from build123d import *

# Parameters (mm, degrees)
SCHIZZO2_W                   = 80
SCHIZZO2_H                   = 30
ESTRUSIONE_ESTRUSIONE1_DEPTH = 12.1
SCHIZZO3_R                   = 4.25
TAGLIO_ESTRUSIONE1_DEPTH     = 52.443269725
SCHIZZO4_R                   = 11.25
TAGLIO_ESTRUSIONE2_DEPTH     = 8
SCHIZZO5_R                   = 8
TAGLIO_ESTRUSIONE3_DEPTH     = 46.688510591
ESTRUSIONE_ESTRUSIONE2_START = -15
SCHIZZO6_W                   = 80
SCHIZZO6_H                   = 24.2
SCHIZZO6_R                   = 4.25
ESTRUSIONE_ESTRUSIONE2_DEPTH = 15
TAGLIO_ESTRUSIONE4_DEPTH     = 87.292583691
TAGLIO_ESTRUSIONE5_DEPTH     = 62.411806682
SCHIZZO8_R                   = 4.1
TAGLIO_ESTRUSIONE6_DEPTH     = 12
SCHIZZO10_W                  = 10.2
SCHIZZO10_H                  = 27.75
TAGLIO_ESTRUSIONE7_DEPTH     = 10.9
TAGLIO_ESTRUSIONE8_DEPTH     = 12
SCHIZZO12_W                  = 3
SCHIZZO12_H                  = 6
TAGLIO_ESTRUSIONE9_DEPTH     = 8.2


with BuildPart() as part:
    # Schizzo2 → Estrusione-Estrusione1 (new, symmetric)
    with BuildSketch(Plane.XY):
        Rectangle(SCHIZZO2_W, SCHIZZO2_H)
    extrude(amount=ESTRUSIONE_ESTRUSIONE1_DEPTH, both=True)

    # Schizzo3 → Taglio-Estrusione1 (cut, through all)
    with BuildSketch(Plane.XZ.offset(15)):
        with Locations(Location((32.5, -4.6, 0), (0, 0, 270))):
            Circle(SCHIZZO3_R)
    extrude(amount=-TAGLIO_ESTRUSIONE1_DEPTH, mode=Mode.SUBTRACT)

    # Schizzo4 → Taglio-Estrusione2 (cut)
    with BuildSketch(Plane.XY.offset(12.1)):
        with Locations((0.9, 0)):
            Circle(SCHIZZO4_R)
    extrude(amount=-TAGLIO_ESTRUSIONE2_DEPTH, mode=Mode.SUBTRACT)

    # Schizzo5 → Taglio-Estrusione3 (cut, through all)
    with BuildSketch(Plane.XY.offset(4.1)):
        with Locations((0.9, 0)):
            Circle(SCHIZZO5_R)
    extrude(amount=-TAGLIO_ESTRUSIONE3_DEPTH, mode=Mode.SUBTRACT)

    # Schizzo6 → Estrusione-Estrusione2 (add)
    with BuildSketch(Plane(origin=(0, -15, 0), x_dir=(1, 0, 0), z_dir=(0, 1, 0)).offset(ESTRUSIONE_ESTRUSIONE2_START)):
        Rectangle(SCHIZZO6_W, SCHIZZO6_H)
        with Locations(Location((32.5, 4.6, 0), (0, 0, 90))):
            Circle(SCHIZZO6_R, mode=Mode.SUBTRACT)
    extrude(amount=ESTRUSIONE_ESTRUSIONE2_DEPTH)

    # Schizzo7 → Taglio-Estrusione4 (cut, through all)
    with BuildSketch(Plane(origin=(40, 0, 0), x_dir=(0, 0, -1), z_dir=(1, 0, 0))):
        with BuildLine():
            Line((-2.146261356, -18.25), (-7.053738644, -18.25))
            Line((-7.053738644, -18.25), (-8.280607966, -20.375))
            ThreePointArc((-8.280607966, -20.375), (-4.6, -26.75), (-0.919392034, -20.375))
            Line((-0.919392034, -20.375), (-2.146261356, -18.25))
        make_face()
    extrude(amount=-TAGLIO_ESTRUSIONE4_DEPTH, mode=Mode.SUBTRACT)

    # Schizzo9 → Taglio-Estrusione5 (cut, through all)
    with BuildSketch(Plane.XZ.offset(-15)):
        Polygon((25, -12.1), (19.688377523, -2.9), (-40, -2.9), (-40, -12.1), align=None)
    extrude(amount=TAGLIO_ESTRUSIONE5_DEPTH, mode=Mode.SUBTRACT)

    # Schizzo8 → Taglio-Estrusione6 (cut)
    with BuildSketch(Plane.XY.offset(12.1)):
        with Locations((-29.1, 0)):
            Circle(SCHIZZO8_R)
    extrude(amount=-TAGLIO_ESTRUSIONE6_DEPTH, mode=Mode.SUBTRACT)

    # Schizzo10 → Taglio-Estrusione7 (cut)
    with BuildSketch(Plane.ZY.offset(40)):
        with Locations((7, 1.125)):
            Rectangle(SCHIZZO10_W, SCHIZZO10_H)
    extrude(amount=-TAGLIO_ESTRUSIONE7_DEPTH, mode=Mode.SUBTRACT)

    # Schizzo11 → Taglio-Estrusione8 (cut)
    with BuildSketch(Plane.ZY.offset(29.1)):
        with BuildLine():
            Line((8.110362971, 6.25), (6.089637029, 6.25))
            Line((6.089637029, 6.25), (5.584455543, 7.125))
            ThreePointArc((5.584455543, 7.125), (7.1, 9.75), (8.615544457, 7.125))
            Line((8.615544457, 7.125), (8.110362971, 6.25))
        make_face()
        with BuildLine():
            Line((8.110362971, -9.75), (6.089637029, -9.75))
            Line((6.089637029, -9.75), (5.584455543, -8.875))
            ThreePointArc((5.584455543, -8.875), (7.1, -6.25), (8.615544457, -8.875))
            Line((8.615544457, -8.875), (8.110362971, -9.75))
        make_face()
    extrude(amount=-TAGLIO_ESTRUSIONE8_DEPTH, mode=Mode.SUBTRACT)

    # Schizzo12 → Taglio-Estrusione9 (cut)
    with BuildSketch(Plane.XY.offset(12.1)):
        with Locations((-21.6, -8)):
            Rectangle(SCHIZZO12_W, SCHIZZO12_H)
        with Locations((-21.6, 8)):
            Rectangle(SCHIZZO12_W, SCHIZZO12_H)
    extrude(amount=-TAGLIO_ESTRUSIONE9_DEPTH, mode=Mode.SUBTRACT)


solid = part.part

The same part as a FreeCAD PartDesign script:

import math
import FreeCAD as App
import Part
import Sketcher
from FreeCAD import Vector
Q = App.Units.Quantity

doc = App.newDocument("Part")
body = doc.addObject("PartDesign::Body", "Body")

# Sketch on XY plane
sketch1 = body.newObject("Sketcher::SketchObject", "Sketch")
sketch1.AttachmentSupport = (doc.getObject("XY_Plane"), [""])
sketch1.MapMode = "FlatFace"
sketch1.addGeometry(Part.LineSegment(Vector(-40, 15, 0), Vector(-40, -15, 0)), False)
sketch1.addGeometry(Part.LineSegment(Vector(-40, -15, 0), Vector(40, -15, 0)), False)
sketch1.addGeometry(Part.LineSegment(Vector(40, -15, 0), Vector(40, 15, 0)), False)
sketch1.addGeometry(Part.LineSegment(Vector(40, 15, 0), Vector(-40, 15, 0)), False)
sketch1.addConstraint(Sketcher.Constraint("Coincident", 0, 2, 1, 1))
sketch1.addConstraint(Sketcher.Constraint("Coincident", 1, 2, 2, 1))
sketch1.addConstraint(Sketcher.Constraint("Coincident", 2, 2, 3, 1))
sketch1.addConstraint(Sketcher.Constraint("Coincident", 3, 2, 0, 1))
sketch1.addConstraint(Sketcher.Constraint("Vertical", 0))
sketch1.addConstraint(Sketcher.Constraint("Horizontal", 1))
sketch1.addConstraint(Sketcher.Constraint("Vertical", 2))
sketch1.addConstraint(Sketcher.Constraint("Horizontal", 3))
sketch1.addConstraint(Sketcher.Constraint("Symmetric", 0, 2, 2, 2, -1, 1))
sketch1.addConstraint(Sketcher.Constraint("DistanceX", 1, 1, 1, 2, 80.0))
sketch1.addConstraint(Sketcher.Constraint("DistanceY", 0, 2, 0, 1, 30.0))
pad1 = body.newObject("PartDesign::Pad", "Pad")
pad1.Profile = sketch1
pad1.Length = 24.2
pad1.Midplane = True

# Sketch on XZ plane
sketch2 = body.newObject("Sketcher::SketchObject", "Sketch001")
sketch2.AttachmentSupport = (doc.getObject("XZ_Plane"), [""])
sketch2.MapMode = "FlatFace"
sketch2.AttachmentOffset = App.Placement(Vector(0, 0, 15), App.Rotation())
sketch2.addGeometry(Part.Circle(Vector(32.5, -4.6, 0), Vector(0, 0, 1), 4.2), False)
sketch2.addConstraint(Sketcher.Constraint("Diameter", 0, 8.5))
sketch2.addConstraint(Sketcher.Constraint("DistanceX", -1, 1, 0, 3, 32.5))
sketch2.addConstraint(Sketcher.Constraint("DistanceY", 0, 3, -1, 1, 4.6))
pocket1 = body.newObject("PartDesign::Pocket", "Pocket")
pocket1.Profile = sketch2
pocket1.Type = "ThroughAll"

# Sketch on XY plane
sketch3 = body.newObject("Sketcher::SketchObject", "Sketch002")
sketch3.AttachmentSupport = (doc.getObject("XY_Plane"), [""])
sketch3.MapMode = "FlatFace"
sketch3.AttachmentOffset = App.Placement(Vector(0, 0, 12.1), App.Rotation())
sketch3.addGeometry(Part.Circle(Vector(1, 0, 0), Vector(0, 0, 1), 11), False)
sketch3.addConstraint(Sketcher.Constraint("PointOnObject", 0, 3, -1))
sketch3.addConstraint(Sketcher.Constraint("Diameter", 0, 22.5))
sketch3.addConstraint(Sketcher.Constraint("DistanceX", -1, 1, 0, 3, 0.9))
pocket2 = body.newObject("PartDesign::Pocket", "Pocket001")
pocket2.Profile = sketch3
pocket2.Length = 8

# Sketch on XY plane
sketch4 = body.newObject("Sketcher::SketchObject", "Sketch003")
sketch4.AttachmentSupport = (doc.getObject("XY_Plane"), [""])
sketch4.MapMode = "FlatFace"
sketch4.AttachmentOffset = App.Placement(Vector(0, 0, 4.1), App.Rotation())
sketch4.addGeometry(Part.Circle(Vector(1, 0, 0), Vector(0, 0, 1), 8), False)
sketch4.addConstraint(Sketcher.Constraint("PointOnObject", 0, 3, -1))
sketch4.addConstraint(Sketcher.Constraint("Diameter", 0, 16.0))
sketch4.addConstraint(Sketcher.Constraint("DistanceX", -1, 1, 0, 3, 0.9))
pocket3 = body.newObject("PartDesign::Pocket", "Pocket002")
pocket3.Profile = sketch4
pocket3.Type = "ThroughAll"

# Sketch on XZ plane
sketch5 = body.newObject("Sketcher::SketchObject", "Sketch004")
sketch5.AttachmentSupport = (doc.getObject("XZ_Plane"), [""])
sketch5.MapMode = "FlatFace"
sketch5.AttachmentOffset = App.Placement(Vector(0, 0, 30), App.Rotation())
sketch5.addGeometry(Part.LineSegment(Vector(-40, -12.1, 0), Vector(-40, 12.1, 0)), False)
sketch5.addGeometry(Part.LineSegment(Vector(-40, 12.1, 0), Vector(40, 12.1, 0)), False)
sketch5.addGeometry(Part.LineSegment(Vector(40, 12.1, 0), Vector(40, -12.1, 0)), False)
sketch5.addGeometry(Part.LineSegment(Vector(40, -12.1, 0), Vector(-40, -12.1, 0)), False)
sketch5.addGeometry(Part.Circle(Vector(32.5, -4.6, 0), Vector(0, 0, 1), 4.2), False)
sketch5.addConstraint(Sketcher.Constraint("Coincident", 0, 2, 1, 1))
sketch5.addConstraint(Sketcher.Constraint("Coincident", 1, 2, 2, 1))
sketch5.addConstraint(Sketcher.Constraint("Coincident", 2, 2, 3, 1))
sketch5.addConstraint(Sketcher.Constraint("Coincident", 3, 2, 0, 1))
sketch5.addConstraint(Sketcher.Constraint("Vertical", 0))
sketch5.addConstraint(Sketcher.Constraint("Horizontal", 1))
sketch5.addConstraint(Sketcher.Constraint("Vertical", 2))
sketch5.addConstraint(Sketcher.Constraint("Horizontal", 3))
sketch5.addConstraint(Sketcher.Constraint("Symmetric", 0, 2, 2, 2, -1, 1))
sketch5.addConstraint(Sketcher.Constraint("Diameter", 4, 8.5))
sketch5.addConstraint(Sketcher.Constraint("DistanceX", 1, 1, 1, 2, 80.0))
sketch5.addConstraint(Sketcher.Constraint("DistanceY", 0, 1, 0, 2, 24.2))
sketch5.addConstraint(Sketcher.Constraint("DistanceX", -1, 1, 4, 3, 32.5))
sketch5.addConstraint(Sketcher.Constraint("DistanceY", 4, 3, -1, 1, 4.6))
pad2 = body.newObject("PartDesign::Pad", "Pad001")
pad2.Profile = sketch5
pad2.Length = 15
pad2.Reversed = True

# Sketch on YZ plane
sketch6 = body.newObject("Sketcher::SketchObject", "Sketch005")
sketch6.AttachmentSupport = (doc.getObject("YZ_Plane"), [""])
sketch6.MapMode = "FlatFace"
sketch6.AttachmentOffset = App.Placement(Vector(0, 0, 40), App.Rotation())
sketch6.addGeometry(Part.LineSegment(Vector(-18.2, 2.1, 0), Vector(-18.2, 7.1, 0)), False)
sketch6.addGeometry(Part.LineSegment(Vector(-18.2, 7.1, 0), Vector(-20.4, 8.3, 0)), False)
sketch6.addGeometry(Part.ArcOfCircle(Part.Circle(Vector(-22.5, 4.6, 0), Vector(0, 0, 1), 4.2), math.radians(60), math.radians(300)), False)
sketch6.addGeometry(Part.LineSegment(Vector(-20.4, 0.9, 0), Vector(-18.2, 2.1, 0)), False)
sketch6.addConstraint(Sketcher.Constraint("Coincident", 0, 2, 1, 1))
sketch6.addConstraint(Sketcher.Constraint("Tangent", 1, 2, 2, 1))
sketch6.addConstraint(Sketcher.Constraint("Tangent", 2, 2, 3, 1))
sketch6.addConstraint(Sketcher.Constraint("Coincident", 3, 2, 0, 1))
sketch6.addConstraint(Sketcher.Constraint("Vertical", 0))
sketch6.addConstraint(Sketcher.Constraint("Vertical", 1, 2, 2, 2))
sketch6.addConstraint(Sketcher.Constraint("Angle", 1, Q("150 deg")))
sketch6.addConstraint(Sketcher.Constraint("Radius", 2, 4.25))
sketch6.addConstraint(Sketcher.Constraint("DistanceX", 2, 3, -1, 1, 22.5))
sketch6.addConstraint(Sketcher.Constraint("DistanceY", -1, 1, 2, 3, 4.6))
sketch6.addConstraint(Sketcher.Constraint("DistanceX", 0, 2, -1, 1, 18.25))
pocket4 = body.newObject("PartDesign::Pocket", "Pocket003")
pocket4.Profile = sketch6
pocket4.Type = "ThroughAll"

# Sketch on XZ plane
sketch7 = body.newObject("Sketcher::SketchObject", "Sketch006")
sketch7.AttachmentSupport = (doc.getObject("XZ_Plane"), [""])
sketch7.MapMode = "FlatFace"
sketch7.AttachmentOffset = App.Placement(Vector(0, 0, -15), App.Rotation())
sketch7.addGeometry(Part.LineSegment(Vector(25, -12, 0), Vector(20, -3, 0)), False)
sketch7.addGeometry(Part.LineSegment(Vector(20, -3, 0), Vector(-40, -3, 0)), False)
sketch7.addGeometry(Part.LineSegment(Vector(-40, -3, 0), Vector(-40, -12, 0)), False)
sketch7.addGeometry(Part.LineSegment(Vector(-40, -12, 0), Vector(25, -12, 0)), False)
sketch7.addConstraint(Sketcher.Constraint("Coincident", 0, 2, 1, 1))
sketch7.addConstraint(Sketcher.Constraint("Coincident", 1, 2, 2, 1))
sketch7.addConstraint(Sketcher.Constraint("Coincident", 2, 2, 3, 1))
sketch7.addConstraint(Sketcher.Constraint("Coincident", 3, 2, 0, 1))
sketch7.addConstraint(Sketcher.Constraint("Horizontal", 1))
sketch7.addConstraint(Sketcher.Constraint("Vertical", 2))
sketch7.addConstraint(Sketcher.Constraint("Horizontal", 3))
sketch7.addConstraint(Sketcher.Constraint("DistanceX", 3, 1, 3, 2, 65.0))
sketch7.addConstraint(Sketcher.Constraint("Angle", 0, Q("120 deg")))
sketch7.addConstraint(Sketcher.Constraint("DistanceY", 2, 2, 2, 1, 9.2))
sketch7.addConstraint(Sketcher.Constraint("DistanceX", 1, 2, -1, 1, 40.0))
sketch7.addConstraint(Sketcher.Constraint("DistanceY", 0, 2, -1, 1, 2.9))
pocket5 = body.newObject("PartDesign::Pocket", "Pocket004")
pocket5.Profile = sketch7
pocket5.Type = "ThroughAll"
pocket5.Reversed = True

# Sketch on XY plane
sketch8 = body.newObject("Sketcher::SketchObject", "Sketch007")
sketch8.AttachmentSupport = (doc.getObject("XY_Plane"), [""])
sketch8.MapMode = "FlatFace"
sketch8.AttachmentOffset = App.Placement(Vector(0, 0, 12.1), App.Rotation())
sketch8.addGeometry(Part.Circle(Vector(-29.1, 0, 0), Vector(0, 0, 1), 4.1), False)
sketch8.addConstraint(Sketcher.Constraint("PointOnObject", 0, 3, -1))
sketch8.addConstraint(Sketcher.Constraint("Diameter", 0, 8.2))
sketch8.addConstraint(Sketcher.Constraint("DistanceX", 0, 3, -1, 1, 29.1))
pocket6 = body.newObject("PartDesign::Pocket", "Pocket005")
pocket6.Profile = sketch8
pocket6.Length = 12

# Sketch on YZ plane
sketch9 = body.newObject("Sketcher::SketchObject", "Sketch008")
sketch9.AttachmentSupport = (doc.getObject("YZ_Plane"), [""])
sketch9.MapMode = "FlatFace"
sketch9.AttachmentOffset = App.Placement(Vector(0, 0, -40), App.Rotation())
sketch9.addGeometry(Part.LineSegment(Vector(15, 2, 0), Vector(-13, 2, 0)), False)
sketch9.addGeometry(Part.LineSegment(Vector(-13, 2, 0), Vector(-13, 12, 0)), False)
sketch9.addGeometry(Part.LineSegment(Vector(-13, 12, 0), Vector(15, 12, 0)), False)
sketch9.addGeometry(Part.LineSegment(Vector(15, 12, 0), Vector(15, 2, 0)), False)
sketch9.addConstraint(Sketcher.Constraint("Coincident", 0, 2, 1, 1))
sketch9.addConstraint(Sketcher.Constraint("Coincident", 1, 2, 2, 1))
sketch9.addConstraint(Sketcher.Constraint("Coincident", 2, 2, 3, 1))
sketch9.addConstraint(Sketcher.Constraint("Coincident", 3, 2, 0, 1))
sketch9.addConstraint(Sketcher.Constraint("Horizontal", 0))
sketch9.addConstraint(Sketcher.Constraint("Vertical", 1))
sketch9.addConstraint(Sketcher.Constraint("Horizontal", 2))
sketch9.addConstraint(Sketcher.Constraint("Vertical", 3))
sketch9.addConstraint(Sketcher.Constraint("DistanceY", 1, 1, 1, 2, 10.2))
sketch9.addConstraint(Sketcher.Constraint("DistanceX", -1, 1, 2, 2, 15.0))
sketch9.addConstraint(Sketcher.Constraint("DistanceX", 0, 2, 0, 1, 27.75))
sketch9.addConstraint(Sketcher.Constraint("DistanceY", -1, 1, 0, 2, 1.9))
pocket7 = body.newObject("PartDesign::Pocket", "Pocket006")
pocket7.Profile = sketch9
pocket7.Length = 10.9
pocket7.Reversed = True

# Sketch on YZ plane
sketch10 = body.newObject("Sketcher::SketchObject", "Sketch009")
sketch10.AttachmentSupport = (doc.getObject("YZ_Plane"), [""])
sketch10.MapMode = "FlatFace"
sketch10.AttachmentOffset = App.Placement(Vector(0, 0, -29.1), App.Rotation())
sketch10.addGeometry(Part.LineSegment(Vector(6.2, 6.1, 0), Vector(6.2, 8.1, 0)), False)
sketch10.addGeometry(Part.LineSegment(Vector(6.2, 8.1, 0), Vector(7.1, 8.6, 0)), False)
sketch10.addGeometry(Part.ArcOfCircle(Part.Circle(Vector(8, 7.1, 0), Vector(0, 0, 1), 1.8), math.radians(-120), math.radians(120)), False)
sketch10.addGeometry(Part.LineSegment(Vector(7.1, 5.6, 0), Vector(6.2, 6.1, 0)), False)
sketch10.addGeometry(Part.LineSegment(Vector(-9.8, 6.1, 0), Vector(-9.8, 8.1, 0)), False)
sketch10.addGeometry(Part.LineSegment(Vector(-9.8, 8.1, 0), Vector(-8.9, 8.6, 0)), False)
sketch10.addGeometry(Part.ArcOfCircle(Part.Circle(Vector(-8, 7.1, 0), Vector(0, 0, 1), 1.8), math.radians(-120), math.radians(120)), False)
sketch10.addGeometry(Part.LineSegment(Vector(-8.9, 5.6, 0), Vector(-9.8, 6.1, 0)), False)
sketch10.addConstraint(Sketcher.Constraint("Coincident", 0, 2, 1, 1))
sketch10.addConstraint(Sketcher.Constraint("Tangent", 1, 2, 2, 2))
sketch10.addConstraint(Sketcher.Constraint("Tangent", 2, 1, 3, 1))
sketch10.addConstraint(Sketcher.Constraint("Coincident", 3, 2, 0, 1))
sketch10.addConstraint(Sketcher.Constraint("Coincident", 4, 2, 5, 1))
sketch10.addConstraint(Sketcher.Constraint("Tangent", 5, 2, 6, 2))
sketch10.addConstraint(Sketcher.Constraint("Tangent", 6, 1, 7, 1))
sketch10.addConstraint(Sketcher.Constraint("Coincident", 7, 2, 4, 1))
sketch10.addConstraint(Sketcher.Constraint("Vertical", 0))
sketch10.addConstraint(Sketcher.Constraint("Vertical", 4))
sketch10.addConstraint(Sketcher.Constraint("Equal", 2, 6))
sketch10.addConstraint(Sketcher.Constraint("Symmetric", 2, 3, 6, 3, -2))
sketch10.addConstraint(Sketcher.Constraint("Parallel", 1, 5))
sketch10.addConstraint(Sketcher.Constraint("Parallel", 3, 7))
sketch10.addConstraint(Sketcher.Constraint("Horizontal", 0, 2, 4, 2))
sketch10.addConstraint(Sketcher.Constraint("Vertical", 1, 2, 2, 1))
sketch10.addConstraint(Sketcher.Constraint("Angle", 1, Q("30 deg")))
sketch10.addConstraint(Sketcher.Constraint("Radius", 2, 1.75))
sketch10.addConstraint(Sketcher.Constraint("DistanceX", -1, 1, 2, 3, 8.0))
sketch10.addConstraint(Sketcher.Constraint("DistanceY", -1, 1, 2, 3, 7.1))
sketch10.addConstraint(Sketcher.Constraint("DistanceX", -1, 1, 0, 2, 6.25))
pocket8 = body.newObject("PartDesign::Pocket", "Pocket007")
pocket8.Profile = sketch10
pocket8.Length = 12
pocket8.Reversed = True

# Sketch on XY plane
sketch11 = body.newObject("Sketcher::SketchObject", "Sketch010")
sketch11.AttachmentSupport = (doc.getObject("XY_Plane"), [""])
sketch11.MapMode = "FlatFace"
sketch11.AttachmentOffset = App.Placement(Vector(0, 0, 12.1), App.Rotation())
sketch11.addGeometry(Part.LineSegment(Vector(-23.1, -5, 0), Vector(-23.1, -11, 0)), False)
sketch11.addGeometry(Part.LineSegment(Vector(-23.1, -11, 0), Vector(-20.1, -11, 0)), False)
sketch11.addGeometry(Part.LineSegment(Vector(-20.1, -11, 0), Vector(-20.1, -5, 0)), False)
sketch11.addGeometry(Part.LineSegment(Vector(-20.1, -5, 0), Vector(-23.1, -5, 0)), False)
sketch11.addGeometry(Part.LineSegment(Vector(-23.1, 11, 0), Vector(-23.1, 5, 0)), False)
sketch11.addGeometry(Part.LineSegment(Vector(-23.1, 5, 0), Vector(-20.1, 5, 0)), False)
sketch11.addGeometry(Part.LineSegment(Vector(-20.1, 5, 0), Vector(-20.1, 11, 0)), False)
sketch11.addGeometry(Part.LineSegment(Vector(-20.1, 11, 0), Vector(-23.1, 11, 0)), False)
sketch11.addConstraint(Sketcher.Constraint("Coincident", 0, 2, 1, 1))
sketch11.addConstraint(Sketcher.Constraint("Coincident", 1, 2, 2, 1))
sketch11.addConstraint(Sketcher.Constraint("Coincident", 2, 2, 3, 1))
sketch11.addConstraint(Sketcher.Constraint("Coincident", 3, 2, 0, 1))
sketch11.addConstraint(Sketcher.Constraint("Coincident", 4, 2, 5, 1))
sketch11.addConstraint(Sketcher.Constraint("Coincident", 5, 2, 6, 1))
sketch11.addConstraint(Sketcher.Constraint("Coincident", 6, 2, 7, 1))
sketch11.addConstraint(Sketcher.Constraint("Coincident", 7, 2, 4, 1))
sketch11.addConstraint(Sketcher.Constraint("Vertical", 0))
sketch11.addConstraint(Sketcher.Constraint("Horizontal", 1))
sketch11.addConstraint(Sketcher.Constraint("Vertical", 2))
sketch11.addConstraint(Sketcher.Constraint("Horizontal", 3))
sketch11.addConstraint(Sketcher.Constraint("Vertical", 4))
sketch11.addConstraint(Sketcher.Constraint("Horizontal", 5))
sketch11.addConstraint(Sketcher.Constraint("Vertical", 6))
sketch11.addConstraint(Sketcher.Constraint("Horizontal", 7))
sketch11.addConstraint(Sketcher.Constraint("Symmetric", 3, 2, 4, 2, -1))
sketch11.addConstraint(Sketcher.Constraint("Symmetric", 1, 2, 6, 2, -1))
sketch11.addConstraint(Sketcher.Constraint("DistanceX", 1, 1, 1, 2, 3.0))
sketch11.addConstraint(Sketcher.Constraint("DistanceY", 0, 2, 0, 1, 6.0))
sketch11.addConstraint(Sketcher.Constraint("DistanceY", 0, 2, -1, 1, 11.0))
sketch11.addConstraint(Sketcher.Constraint("DistanceX", 0, 2, -1, 1, 23.1))
pocket9 = body.newObject("PartDesign::Pocket", "Pocket008")
pocket9.Profile = sketch11
pocket9.Length = 8.2

doc.recompute()
